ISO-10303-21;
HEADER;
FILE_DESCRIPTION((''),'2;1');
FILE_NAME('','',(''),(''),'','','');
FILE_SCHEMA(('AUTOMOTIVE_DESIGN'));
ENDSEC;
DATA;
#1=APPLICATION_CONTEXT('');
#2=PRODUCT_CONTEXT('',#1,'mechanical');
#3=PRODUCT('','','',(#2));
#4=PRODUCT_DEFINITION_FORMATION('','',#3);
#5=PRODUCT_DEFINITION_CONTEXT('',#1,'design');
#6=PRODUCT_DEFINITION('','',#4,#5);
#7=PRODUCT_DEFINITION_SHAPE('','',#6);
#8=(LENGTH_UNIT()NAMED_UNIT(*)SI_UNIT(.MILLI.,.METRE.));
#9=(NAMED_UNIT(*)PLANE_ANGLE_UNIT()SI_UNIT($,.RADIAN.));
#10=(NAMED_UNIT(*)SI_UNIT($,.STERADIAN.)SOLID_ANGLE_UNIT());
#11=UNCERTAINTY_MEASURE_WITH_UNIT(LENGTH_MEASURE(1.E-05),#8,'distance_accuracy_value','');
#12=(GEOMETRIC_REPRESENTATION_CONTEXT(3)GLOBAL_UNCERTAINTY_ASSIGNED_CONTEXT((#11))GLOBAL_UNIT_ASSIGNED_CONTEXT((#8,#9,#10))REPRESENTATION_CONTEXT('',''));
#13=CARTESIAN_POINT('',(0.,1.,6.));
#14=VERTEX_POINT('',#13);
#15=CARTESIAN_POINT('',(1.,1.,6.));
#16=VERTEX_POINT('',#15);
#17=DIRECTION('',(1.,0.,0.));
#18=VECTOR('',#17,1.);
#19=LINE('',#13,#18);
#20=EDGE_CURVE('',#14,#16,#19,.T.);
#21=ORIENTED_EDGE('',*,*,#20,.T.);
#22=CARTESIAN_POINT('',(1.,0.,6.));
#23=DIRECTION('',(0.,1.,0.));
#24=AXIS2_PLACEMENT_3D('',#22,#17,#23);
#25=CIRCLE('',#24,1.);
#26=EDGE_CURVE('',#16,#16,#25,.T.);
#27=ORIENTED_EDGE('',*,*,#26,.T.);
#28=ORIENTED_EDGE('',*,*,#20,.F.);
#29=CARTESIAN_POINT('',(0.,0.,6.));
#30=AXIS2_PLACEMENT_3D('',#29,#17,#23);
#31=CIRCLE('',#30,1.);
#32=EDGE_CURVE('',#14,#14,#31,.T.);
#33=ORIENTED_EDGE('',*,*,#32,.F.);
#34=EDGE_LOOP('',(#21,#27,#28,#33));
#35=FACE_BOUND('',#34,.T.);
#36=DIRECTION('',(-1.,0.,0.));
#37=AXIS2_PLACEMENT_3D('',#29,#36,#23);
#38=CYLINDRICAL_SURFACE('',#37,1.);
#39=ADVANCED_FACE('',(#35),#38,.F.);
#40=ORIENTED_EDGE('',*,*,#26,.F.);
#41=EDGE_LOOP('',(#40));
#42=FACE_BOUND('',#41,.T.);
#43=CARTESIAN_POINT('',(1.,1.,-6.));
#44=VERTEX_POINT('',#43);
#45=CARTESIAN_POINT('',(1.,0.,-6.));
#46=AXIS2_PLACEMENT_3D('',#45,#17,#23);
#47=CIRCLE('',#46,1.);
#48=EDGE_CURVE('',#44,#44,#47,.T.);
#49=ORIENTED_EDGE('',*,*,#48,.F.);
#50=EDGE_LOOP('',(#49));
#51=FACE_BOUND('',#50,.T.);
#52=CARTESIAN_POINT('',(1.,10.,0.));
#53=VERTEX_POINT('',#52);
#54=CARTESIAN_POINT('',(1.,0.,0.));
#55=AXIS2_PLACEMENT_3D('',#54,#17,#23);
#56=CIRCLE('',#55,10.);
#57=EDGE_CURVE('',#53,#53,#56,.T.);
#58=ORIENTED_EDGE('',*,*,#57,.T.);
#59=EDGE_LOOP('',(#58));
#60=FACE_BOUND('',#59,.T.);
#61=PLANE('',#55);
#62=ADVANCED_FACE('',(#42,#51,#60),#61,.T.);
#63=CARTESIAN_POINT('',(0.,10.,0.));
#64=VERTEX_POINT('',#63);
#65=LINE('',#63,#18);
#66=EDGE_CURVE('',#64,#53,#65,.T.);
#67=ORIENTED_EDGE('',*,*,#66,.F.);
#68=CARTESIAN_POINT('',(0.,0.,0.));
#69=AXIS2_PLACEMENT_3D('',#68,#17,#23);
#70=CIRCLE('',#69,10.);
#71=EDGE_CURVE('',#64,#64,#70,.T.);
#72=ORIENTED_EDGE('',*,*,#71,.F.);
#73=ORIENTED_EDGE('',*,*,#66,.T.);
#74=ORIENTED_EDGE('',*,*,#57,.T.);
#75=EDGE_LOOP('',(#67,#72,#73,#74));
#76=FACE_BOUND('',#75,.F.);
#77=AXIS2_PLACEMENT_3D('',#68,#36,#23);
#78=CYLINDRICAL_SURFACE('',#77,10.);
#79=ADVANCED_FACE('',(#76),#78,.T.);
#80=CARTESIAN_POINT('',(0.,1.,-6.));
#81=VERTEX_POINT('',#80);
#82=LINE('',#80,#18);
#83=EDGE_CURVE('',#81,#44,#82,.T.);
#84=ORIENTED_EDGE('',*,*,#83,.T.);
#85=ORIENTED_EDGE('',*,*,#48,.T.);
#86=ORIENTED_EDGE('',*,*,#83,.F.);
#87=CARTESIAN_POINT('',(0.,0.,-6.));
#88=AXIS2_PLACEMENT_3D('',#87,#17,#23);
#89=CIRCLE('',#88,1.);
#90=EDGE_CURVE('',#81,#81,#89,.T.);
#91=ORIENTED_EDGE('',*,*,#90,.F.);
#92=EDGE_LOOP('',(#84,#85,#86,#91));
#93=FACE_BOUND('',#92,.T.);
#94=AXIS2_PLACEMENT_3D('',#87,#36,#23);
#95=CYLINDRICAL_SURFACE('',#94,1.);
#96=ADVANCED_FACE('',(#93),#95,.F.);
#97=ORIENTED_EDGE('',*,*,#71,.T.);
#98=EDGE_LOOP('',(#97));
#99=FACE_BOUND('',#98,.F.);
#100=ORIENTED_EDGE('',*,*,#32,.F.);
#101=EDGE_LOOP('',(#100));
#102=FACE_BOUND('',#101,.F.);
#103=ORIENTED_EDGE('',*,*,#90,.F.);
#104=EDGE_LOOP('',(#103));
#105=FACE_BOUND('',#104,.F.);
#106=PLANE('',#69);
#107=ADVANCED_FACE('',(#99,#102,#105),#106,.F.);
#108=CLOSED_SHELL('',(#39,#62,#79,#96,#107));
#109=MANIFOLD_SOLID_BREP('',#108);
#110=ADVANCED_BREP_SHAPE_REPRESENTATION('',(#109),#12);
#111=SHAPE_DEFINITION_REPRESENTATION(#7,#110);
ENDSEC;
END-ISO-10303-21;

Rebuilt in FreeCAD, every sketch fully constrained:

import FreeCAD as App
import Part
import Sketcher

V = App.Vector
Q = App.Units.Quantity

doc = App.newDocument("Part")
body = doc.addObject("PartDesign::Body", "Body")

sketch1 = body.newObject("Sketcher::SketchObject", "Sketch")
sketch1.AttachmentSupport = (doc.getObject("YZ_Plane"), [""])
sketch1.MapMode = "FlatFace"
sketch1.addGeometry(Part.Circle(V(0, 0, 0), V(0, 0, 1), 10), False)
sketch1.addGeometry(Part.Circle(V(0, -6, 0), V(0, 0, 1), 1), False)
sketch1.addGeometry(Part.Circle(V(0, 6, 0), V(0, 0, 1), 1), False)
sketch1.addConstraint(Sketcher.Constraint("Coincident", 0, 3, -1, 1))
sketch1.addConstraint(Sketcher.Constraint("Equal", 1, 2))
sketch1.addConstraint(Sketcher.Constraint("Symmetric", 1, 3, 2, 3, -1, 1))
sketch1.addConstraint(Sketcher.Constraint("PointOnObject", 1, 3, -2))
sketch1.addConstraint(Sketcher.Constraint("Diameter", 0, Q("20 mm")))
sketch1.addConstraint(Sketcher.Constraint("Diameter", 1, Q("2 mm")))
sketch1.addConstraint(Sketcher.Constraint("DistanceY", 1, 3, -1, 1, Q("6 mm")))
pad1 = body.newObject("PartDesign::Pad", "Pad")
pad1.Profile = sketch1
pad1.Length = 1

doc.recompute()
